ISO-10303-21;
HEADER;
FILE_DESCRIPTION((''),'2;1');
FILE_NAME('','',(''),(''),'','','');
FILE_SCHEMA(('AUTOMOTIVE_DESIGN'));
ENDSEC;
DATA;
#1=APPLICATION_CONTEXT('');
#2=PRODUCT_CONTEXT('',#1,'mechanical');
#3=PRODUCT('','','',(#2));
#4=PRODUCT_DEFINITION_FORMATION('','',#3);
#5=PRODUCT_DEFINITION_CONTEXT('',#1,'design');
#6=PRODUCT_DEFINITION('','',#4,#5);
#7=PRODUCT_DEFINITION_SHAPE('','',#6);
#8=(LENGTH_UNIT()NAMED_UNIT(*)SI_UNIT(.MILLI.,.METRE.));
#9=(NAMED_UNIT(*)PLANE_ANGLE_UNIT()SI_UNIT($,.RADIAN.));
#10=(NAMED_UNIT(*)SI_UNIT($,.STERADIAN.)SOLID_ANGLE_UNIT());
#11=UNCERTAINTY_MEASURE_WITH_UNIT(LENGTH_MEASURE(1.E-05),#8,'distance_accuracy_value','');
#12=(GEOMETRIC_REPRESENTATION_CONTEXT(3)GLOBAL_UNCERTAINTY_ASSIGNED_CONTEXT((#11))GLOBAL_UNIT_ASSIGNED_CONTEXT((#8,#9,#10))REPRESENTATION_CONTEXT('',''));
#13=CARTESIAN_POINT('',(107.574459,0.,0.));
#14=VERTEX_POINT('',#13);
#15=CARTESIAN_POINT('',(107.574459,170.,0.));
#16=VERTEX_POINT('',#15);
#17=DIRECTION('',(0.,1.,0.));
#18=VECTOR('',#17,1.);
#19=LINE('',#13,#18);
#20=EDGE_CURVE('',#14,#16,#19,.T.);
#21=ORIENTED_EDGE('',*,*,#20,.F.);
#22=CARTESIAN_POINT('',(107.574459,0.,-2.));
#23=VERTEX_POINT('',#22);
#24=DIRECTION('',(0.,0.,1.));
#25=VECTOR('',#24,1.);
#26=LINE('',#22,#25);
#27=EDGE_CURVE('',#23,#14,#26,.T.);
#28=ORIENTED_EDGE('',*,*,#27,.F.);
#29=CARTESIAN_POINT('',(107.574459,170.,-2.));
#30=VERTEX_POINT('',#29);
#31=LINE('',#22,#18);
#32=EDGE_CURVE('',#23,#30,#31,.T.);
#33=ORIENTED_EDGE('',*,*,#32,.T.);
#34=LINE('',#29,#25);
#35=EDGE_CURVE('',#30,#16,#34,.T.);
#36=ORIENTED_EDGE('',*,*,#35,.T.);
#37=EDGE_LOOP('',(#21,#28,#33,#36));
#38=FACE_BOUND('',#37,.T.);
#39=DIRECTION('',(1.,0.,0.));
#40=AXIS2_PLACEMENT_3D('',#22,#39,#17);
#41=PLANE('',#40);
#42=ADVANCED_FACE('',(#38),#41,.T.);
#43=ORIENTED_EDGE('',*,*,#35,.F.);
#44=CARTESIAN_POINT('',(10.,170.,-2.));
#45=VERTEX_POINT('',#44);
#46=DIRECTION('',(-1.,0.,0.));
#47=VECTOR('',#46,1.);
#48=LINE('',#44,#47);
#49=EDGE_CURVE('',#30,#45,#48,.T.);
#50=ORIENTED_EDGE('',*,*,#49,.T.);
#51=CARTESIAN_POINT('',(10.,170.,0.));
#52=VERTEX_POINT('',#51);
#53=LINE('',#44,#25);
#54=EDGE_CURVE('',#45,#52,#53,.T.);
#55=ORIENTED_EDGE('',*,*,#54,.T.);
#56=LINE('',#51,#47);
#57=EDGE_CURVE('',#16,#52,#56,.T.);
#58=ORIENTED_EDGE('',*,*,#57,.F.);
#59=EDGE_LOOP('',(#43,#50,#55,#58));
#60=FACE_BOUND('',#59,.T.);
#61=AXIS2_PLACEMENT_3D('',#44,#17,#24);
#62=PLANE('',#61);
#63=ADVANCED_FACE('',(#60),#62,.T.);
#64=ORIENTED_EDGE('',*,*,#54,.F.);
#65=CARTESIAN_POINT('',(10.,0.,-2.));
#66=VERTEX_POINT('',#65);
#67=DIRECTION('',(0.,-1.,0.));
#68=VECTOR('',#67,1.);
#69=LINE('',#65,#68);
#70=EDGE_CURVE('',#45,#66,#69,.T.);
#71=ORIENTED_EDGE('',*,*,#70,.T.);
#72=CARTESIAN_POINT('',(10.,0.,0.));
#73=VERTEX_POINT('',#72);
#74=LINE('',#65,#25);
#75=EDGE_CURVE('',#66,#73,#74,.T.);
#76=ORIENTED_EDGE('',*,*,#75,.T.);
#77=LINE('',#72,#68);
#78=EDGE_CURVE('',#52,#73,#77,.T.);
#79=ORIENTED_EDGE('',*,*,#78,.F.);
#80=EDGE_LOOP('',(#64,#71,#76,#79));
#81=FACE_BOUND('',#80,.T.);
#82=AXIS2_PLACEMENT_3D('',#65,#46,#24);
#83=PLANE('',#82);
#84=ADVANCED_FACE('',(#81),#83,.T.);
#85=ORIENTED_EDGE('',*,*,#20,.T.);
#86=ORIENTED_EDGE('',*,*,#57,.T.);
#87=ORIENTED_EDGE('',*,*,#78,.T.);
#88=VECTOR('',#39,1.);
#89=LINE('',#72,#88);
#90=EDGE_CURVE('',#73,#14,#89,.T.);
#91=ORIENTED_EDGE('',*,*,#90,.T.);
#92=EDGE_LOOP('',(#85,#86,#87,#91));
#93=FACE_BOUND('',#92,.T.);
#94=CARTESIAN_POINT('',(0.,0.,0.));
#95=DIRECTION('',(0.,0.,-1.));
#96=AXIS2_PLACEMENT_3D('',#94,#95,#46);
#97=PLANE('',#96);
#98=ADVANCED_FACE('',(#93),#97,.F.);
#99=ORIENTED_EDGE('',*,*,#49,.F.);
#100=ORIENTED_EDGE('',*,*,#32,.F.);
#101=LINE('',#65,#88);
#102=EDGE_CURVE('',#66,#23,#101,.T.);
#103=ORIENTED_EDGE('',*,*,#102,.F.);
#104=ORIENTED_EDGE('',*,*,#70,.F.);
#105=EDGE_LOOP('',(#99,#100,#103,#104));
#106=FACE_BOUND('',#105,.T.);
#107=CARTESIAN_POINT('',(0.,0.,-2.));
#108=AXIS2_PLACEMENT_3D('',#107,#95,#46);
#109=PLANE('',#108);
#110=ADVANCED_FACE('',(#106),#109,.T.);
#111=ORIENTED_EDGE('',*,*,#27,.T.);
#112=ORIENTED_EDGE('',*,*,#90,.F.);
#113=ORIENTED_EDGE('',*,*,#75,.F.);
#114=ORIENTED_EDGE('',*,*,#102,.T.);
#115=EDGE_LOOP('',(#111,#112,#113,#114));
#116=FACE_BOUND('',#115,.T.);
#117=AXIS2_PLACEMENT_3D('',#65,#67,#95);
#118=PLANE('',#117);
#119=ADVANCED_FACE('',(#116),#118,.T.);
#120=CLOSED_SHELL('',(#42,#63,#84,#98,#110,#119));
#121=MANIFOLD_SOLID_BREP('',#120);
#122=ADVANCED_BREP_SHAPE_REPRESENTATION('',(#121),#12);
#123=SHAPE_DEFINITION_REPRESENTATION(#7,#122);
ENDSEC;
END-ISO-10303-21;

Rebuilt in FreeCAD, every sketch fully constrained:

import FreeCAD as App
import Part
import Sketcher
from FreeCAD import Vector
Q = App.Units.Quantity

doc = App.newDocument("Part")
body = doc.addObject("PartDesign::Body", "Body")

# Sketch on XY plane
sketch1 = body.newObject("Sketcher::SketchObject", "Sketch")
sketch1.AttachmentSupport = (doc.getObject("XY_Plane"), [""])
sketch1.MapMode = "FlatFace"
sketch1.addGeometry(Part.LineSegment(Vector(10, 170, 0), Vector(10, 0, 0)), False)
sketch1.addGeometry(Part.LineSegment(Vector(10, 0, 0), Vector(107.574459, 0, 0)), False)
sketch1.addGeometry(Part.LineSegment(Vector(107.574459, 0, 0), Vector(107.574459, 170, 0)), False)
sketch1.addGeometry(Part.LineSegment(Vector(107.574459, 170, 0), Vector(10, 170, 0)), False)
sketch1.addConstraint(Sketcher.Constraint("Coincident", 0, 2, 1, 1))
sketch1.addConstraint(Sketcher.Constraint("Coincident", 1, 2, 2, 1))
sketch1.addConstraint(Sketcher.Constraint("Coincident", 2, 2, 3, 1))
sketch1.addConstraint(Sketcher.Constraint("Coincident", 3, 2, 0, 1))
sketch1.addConstraint(Sketcher.Constraint("Vertical", 0))
sketch1.addConstraint(Sketcher.Constraint("Horizontal", 1))
sketch1.addConstraint(Sketcher.Constraint("Vertical", 2))
sketch1.addConstraint(Sketcher.Constraint("Horizontal", 3))
sketch1.addConstraint(Sketcher.Constraint("PointOnObject", 0, 2, -1))
sketch1.addConstraint(Sketcher.Constraint("DistanceY", 0, 2, 0, 1, Q("170 mm")))
sketch1.addConstraint(Sketcher.Constraint("DistanceX", -1, 1, 0, 2, Q("10 mm")))
sketch1.addConstraint(Sketcher.Constraint("DistanceX", 1, 1, 1, 2, Q("97.574459 mm")))
pad1 = body.newObject("PartDesign::Pad", "Pad")
pad1.Profile = sketch1
pad1.Length = 2
pad1.Reversed = True

doc.recompute()
